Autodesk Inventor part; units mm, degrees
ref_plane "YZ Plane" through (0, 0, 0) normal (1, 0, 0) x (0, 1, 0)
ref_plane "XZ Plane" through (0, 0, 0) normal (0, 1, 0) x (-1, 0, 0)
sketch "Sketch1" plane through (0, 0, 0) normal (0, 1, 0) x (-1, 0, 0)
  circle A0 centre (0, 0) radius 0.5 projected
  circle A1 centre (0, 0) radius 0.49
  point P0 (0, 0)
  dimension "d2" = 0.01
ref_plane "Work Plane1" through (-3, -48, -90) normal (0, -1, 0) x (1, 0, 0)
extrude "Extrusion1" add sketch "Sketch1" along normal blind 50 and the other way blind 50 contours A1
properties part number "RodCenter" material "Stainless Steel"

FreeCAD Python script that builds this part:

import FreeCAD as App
import Part
import Sketcher

doc = App.newDocument("Part")
body = doc.addObject("PartDesign::Body", "Body")

# Sketch on XZ plane
sketch1 = body.newObject("Sketcher::SketchObject", "Sketch")
sketch1.AttachmentSupport = (doc.getObject("XZ_Plane"), [""])
sketch1.MapMode = "FlatFace"
sketch1.addGeometry(Part.Circle(App.Vector(0, 0, 0), App.Vector(0, 0, 1), 0.49), False)
sketch1.addConstraint([
    Sketcher.Constraint("Coincident", 0, 3, -1, 1),
    Sketcher.Constraint("Diameter", 0, 0.98),
])
pad1 = body.newObject("PartDesign::Pad", "Pad")
pad1.Profile = sketch1
pad1.Type = "TwoLengths"
pad1.Length = 50
pad1.Length2 = 50
pad1.Reversed = True

doc.recompute()
